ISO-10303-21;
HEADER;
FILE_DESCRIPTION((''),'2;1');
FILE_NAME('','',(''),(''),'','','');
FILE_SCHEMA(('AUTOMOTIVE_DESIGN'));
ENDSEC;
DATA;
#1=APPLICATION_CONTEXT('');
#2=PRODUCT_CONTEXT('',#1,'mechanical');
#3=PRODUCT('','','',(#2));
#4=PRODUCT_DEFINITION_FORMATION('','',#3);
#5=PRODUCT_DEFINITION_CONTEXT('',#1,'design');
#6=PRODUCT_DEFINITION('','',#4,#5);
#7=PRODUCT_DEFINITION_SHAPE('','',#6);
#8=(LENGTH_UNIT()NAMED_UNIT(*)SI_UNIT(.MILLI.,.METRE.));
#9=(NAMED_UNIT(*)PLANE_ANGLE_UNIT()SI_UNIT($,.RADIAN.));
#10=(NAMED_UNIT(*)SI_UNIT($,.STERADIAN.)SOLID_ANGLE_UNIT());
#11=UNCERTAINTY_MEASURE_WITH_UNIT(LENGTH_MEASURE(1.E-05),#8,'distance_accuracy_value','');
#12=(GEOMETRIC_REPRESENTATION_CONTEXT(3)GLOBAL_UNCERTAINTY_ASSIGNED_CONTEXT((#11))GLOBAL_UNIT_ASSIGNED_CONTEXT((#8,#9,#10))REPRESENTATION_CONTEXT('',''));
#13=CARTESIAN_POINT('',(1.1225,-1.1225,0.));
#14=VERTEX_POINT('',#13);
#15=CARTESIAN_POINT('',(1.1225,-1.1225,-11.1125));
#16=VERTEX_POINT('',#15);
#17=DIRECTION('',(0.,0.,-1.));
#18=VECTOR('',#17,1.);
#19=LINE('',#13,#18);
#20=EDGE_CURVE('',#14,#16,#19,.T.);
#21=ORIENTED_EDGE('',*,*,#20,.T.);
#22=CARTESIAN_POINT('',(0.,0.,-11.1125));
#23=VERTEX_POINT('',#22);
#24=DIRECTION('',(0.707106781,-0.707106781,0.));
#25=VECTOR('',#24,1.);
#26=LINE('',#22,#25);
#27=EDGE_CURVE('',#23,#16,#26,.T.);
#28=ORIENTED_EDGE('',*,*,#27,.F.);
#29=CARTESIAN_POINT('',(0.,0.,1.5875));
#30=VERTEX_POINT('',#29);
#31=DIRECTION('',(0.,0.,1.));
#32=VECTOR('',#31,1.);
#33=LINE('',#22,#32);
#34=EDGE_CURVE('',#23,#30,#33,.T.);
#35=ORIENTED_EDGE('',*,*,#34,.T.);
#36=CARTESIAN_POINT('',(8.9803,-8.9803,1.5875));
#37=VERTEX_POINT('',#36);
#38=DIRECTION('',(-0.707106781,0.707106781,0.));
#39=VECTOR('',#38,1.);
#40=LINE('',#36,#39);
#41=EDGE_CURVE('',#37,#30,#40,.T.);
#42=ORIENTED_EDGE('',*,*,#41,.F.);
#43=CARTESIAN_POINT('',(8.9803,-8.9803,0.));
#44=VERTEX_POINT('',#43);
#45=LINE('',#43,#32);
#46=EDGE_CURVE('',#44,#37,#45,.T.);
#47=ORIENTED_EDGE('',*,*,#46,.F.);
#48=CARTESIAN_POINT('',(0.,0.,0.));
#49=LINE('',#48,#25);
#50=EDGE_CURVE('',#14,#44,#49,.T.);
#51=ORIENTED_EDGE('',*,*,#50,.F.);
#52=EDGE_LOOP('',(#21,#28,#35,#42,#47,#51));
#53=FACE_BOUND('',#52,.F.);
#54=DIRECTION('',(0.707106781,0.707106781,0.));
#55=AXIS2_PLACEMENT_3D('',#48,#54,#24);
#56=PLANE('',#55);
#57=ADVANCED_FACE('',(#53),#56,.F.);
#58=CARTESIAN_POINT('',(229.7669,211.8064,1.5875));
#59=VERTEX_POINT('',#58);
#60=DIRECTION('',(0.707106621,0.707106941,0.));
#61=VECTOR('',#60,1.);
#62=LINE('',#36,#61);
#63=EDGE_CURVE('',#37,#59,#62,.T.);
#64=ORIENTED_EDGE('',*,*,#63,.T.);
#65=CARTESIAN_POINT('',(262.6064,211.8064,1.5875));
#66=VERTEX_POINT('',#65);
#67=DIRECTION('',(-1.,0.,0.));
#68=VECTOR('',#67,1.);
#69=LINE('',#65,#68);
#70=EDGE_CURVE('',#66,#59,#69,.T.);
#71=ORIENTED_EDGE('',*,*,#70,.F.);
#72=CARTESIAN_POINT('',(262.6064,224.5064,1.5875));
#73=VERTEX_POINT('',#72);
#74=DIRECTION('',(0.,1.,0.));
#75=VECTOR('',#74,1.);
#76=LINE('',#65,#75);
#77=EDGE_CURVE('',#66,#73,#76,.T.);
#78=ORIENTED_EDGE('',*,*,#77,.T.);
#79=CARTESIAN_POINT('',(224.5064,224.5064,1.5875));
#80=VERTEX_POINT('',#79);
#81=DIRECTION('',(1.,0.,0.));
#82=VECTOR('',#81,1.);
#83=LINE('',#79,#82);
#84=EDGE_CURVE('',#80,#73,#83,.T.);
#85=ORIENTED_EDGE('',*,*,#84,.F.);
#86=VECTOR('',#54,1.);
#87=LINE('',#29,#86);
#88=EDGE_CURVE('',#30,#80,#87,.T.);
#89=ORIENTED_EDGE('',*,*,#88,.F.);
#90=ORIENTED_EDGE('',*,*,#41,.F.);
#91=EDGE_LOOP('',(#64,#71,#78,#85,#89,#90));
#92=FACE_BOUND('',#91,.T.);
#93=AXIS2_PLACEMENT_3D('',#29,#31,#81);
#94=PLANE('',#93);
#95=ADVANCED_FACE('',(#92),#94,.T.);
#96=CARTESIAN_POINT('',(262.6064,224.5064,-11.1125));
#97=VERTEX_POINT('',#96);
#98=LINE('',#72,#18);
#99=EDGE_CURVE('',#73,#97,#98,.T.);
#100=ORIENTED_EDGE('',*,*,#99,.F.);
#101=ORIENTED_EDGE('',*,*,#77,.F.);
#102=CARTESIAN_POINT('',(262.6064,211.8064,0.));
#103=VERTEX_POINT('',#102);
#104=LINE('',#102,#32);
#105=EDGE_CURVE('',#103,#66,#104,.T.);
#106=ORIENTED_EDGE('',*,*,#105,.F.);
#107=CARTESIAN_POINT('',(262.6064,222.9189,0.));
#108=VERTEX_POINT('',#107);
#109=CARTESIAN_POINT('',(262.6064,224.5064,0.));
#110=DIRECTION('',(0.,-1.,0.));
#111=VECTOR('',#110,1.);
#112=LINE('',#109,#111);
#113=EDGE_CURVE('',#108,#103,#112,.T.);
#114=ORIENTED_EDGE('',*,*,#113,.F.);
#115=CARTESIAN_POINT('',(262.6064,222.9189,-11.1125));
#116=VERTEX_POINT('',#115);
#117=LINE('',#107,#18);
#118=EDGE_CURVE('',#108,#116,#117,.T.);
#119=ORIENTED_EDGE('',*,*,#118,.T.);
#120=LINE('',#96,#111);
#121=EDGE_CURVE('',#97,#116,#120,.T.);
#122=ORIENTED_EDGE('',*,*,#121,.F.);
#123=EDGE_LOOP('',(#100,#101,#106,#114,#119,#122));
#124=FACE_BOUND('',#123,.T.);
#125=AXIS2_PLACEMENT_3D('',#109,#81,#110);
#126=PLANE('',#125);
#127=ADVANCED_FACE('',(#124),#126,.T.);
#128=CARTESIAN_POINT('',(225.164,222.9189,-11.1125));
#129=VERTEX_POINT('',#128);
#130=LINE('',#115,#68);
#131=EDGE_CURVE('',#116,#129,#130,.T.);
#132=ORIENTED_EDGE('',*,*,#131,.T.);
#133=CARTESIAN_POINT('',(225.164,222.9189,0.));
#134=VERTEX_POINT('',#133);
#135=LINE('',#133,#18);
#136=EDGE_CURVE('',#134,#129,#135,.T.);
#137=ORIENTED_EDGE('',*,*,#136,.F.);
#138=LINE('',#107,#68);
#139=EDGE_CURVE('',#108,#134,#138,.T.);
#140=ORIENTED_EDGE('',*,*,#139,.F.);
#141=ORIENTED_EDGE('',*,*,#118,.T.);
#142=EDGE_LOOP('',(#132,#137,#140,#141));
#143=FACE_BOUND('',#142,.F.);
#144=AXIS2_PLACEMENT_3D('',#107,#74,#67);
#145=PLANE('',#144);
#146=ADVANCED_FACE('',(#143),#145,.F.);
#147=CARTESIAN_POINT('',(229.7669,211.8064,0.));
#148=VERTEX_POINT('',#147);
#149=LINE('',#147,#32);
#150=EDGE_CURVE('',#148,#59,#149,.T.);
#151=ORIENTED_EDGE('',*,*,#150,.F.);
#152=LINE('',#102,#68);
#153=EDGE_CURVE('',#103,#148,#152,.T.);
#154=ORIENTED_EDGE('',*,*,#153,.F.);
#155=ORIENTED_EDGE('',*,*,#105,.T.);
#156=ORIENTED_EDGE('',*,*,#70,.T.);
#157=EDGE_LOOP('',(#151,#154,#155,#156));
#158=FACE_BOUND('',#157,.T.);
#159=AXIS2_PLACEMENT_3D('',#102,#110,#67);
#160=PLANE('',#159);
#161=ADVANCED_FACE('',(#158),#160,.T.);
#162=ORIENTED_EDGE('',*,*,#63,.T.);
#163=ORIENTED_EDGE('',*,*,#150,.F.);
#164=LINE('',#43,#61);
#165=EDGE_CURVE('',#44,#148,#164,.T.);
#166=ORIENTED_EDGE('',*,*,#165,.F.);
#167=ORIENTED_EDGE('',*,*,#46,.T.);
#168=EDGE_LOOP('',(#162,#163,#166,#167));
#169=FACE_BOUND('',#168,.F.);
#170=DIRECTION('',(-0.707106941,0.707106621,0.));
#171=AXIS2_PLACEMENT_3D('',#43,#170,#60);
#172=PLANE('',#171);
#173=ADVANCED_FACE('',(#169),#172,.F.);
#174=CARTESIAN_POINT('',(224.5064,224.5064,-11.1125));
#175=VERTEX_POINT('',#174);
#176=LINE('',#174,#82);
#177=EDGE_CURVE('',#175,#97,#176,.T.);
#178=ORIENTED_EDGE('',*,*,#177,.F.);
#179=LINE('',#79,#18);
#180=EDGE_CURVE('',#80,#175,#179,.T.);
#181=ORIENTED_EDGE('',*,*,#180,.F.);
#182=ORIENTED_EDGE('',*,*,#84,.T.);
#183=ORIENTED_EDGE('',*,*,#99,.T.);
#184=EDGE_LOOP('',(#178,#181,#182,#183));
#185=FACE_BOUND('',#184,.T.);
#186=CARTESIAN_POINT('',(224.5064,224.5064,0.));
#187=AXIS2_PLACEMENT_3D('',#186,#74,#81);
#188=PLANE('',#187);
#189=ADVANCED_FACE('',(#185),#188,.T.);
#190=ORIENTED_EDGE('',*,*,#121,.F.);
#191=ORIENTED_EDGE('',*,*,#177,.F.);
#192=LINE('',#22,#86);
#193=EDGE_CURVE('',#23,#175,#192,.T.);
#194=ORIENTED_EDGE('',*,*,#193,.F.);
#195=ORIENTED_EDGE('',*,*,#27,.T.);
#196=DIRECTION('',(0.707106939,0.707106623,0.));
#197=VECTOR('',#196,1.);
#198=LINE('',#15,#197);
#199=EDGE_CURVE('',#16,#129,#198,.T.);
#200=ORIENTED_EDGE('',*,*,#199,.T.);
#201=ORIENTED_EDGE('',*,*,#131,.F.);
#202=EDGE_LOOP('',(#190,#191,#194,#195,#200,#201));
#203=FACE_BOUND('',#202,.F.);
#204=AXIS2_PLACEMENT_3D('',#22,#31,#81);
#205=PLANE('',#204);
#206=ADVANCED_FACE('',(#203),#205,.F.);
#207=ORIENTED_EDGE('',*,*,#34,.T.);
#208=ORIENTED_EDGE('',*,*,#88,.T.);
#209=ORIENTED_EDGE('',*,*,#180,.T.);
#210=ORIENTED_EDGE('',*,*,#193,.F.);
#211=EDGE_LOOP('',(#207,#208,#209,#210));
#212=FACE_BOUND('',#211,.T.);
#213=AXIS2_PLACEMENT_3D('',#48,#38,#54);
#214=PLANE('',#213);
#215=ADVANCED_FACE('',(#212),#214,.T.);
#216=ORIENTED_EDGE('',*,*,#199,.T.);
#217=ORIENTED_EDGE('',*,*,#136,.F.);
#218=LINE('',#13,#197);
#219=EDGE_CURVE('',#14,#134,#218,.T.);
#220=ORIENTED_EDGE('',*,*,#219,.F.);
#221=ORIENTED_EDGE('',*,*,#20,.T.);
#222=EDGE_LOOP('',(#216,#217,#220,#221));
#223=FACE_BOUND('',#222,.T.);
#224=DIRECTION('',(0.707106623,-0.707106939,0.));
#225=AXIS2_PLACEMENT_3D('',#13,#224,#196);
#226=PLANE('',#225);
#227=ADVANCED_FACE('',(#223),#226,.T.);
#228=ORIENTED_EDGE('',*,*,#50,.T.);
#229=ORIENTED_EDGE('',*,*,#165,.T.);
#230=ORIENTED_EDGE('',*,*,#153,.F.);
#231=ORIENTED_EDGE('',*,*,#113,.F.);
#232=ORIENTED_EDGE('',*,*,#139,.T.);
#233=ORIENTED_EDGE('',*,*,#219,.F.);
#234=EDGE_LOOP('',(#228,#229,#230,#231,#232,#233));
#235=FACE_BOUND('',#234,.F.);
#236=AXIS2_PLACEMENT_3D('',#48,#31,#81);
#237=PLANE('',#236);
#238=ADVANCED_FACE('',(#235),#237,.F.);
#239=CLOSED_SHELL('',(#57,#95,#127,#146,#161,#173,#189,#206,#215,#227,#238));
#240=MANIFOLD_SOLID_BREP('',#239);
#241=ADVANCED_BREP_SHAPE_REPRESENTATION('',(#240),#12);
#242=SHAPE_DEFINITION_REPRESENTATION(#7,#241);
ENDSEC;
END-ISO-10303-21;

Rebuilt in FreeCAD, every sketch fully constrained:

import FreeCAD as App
import Part
import Sketcher
from FreeCAD import Vector
Q = App.Units.Quantity


def add_polygon(sketch, points):
    """Adds a closed chain of lines whose ends are joined by coincident constraints."""
    first, n = sketch.GeometryCount, len(points)
    for a, b in zip(points, points[1:] + points[:1]):
        sketch.addGeometry(Part.LineSegment(App.Vector(*a, 0), App.Vector(*b, 0)), False)
    for i in range(n):
        sketch.addConstraint(Sketcher.Constraint("Coincident", first + i, 2, first + (i + 1) % n, 1))

doc = App.newDocument("Part")
body = doc.addObject("PartDesign::Body", "Body")

# Sketch on XY plane
sketch1 = body.newObject("Sketcher::SketchObject", "Sketch")
sketch1.AttachmentSupport = (doc.getObject("XY_Plane"), [""])
sketch1.MapMode = "FlatFace"
add_polygon(sketch1, [(225, 225), (0, 0), (9, -9), (230, 212), (263, 212), (263, 225)])  # lines 0-5
sketch1.addConstraint([
    Sketcher.Constraint("Horizontal", 3),
    Sketcher.Constraint("Vertical", 4),
    Sketcher.Constraint("Horizontal", 5),
    Sketcher.Constraint("Coincident", 0, 2, -1, 1),
    Sketcher.Constraint("Perpendicular", 0, 1),
    Sketcher.Constraint("Perpendicular", 1, 2),
    Sketcher.Constraint("DistanceX", 5, 2, 5, 1, Q("1.5 in")),
    Sketcher.Constraint("DistanceY", 4, 1, 4, 2, Q("0.5 in")),
    Sketcher.Constraint("Angle", 1, Q("-45 deg")),
    Sketcher.Constraint("Distance", 0, Q("12.5 in")),
    Sketcher.Constraint("Distance", 1, Q("0.5 in")),
])
pad1 = body.newObject("PartDesign::Pad", "Pad")
pad1.Profile = sketch1
pad1.Length = Q("0.0625 in")

# Sketch on XY plane
sketch2 = body.newObject("Sketcher::SketchObject", "Sketch001")
sketch2.AttachmentSupport = (doc.getObject("XY_Plane"), [""])
sketch2.MapMode = "FlatFace"
add_polygon(sketch2, [(224.5, 224.5), (0, 0), (1.1, -1.1), (225.2, 222.9), (262.6, 222.9), (262.6, 224.5)])  # lines 0-5
sketch2.addConstraint([
    Sketcher.Constraint("Horizontal", 3),
    Sketcher.Constraint("Vertical", 4),
    Sketcher.Constraint("Horizontal", 5),
    Sketcher.Constraint("Coincident", 0, 2, -1, 1),
    Sketcher.Constraint("Perpendicular", 0, 1),
    Sketcher.Constraint("Perpendicular", 1, 2),
    Sketcher.Constraint("DistanceX", 5, 2, 5, 1, Q("1.5 in")),
    Sketcher.Constraint("Angle", 2, Q("45 deg")),
    Sketcher.Constraint("Distance", 0, Q("12.5 in")),
    Sketcher.Constraint("DistanceY", 4, 1, 4, 2, Q("0.0625 in")),
    Sketcher.Constraint("Distance", 1, Q("0.0625 in")),
])
pad2 = body.newObject("PartDesign::Pad", "Pad001")
pad2.Profile = sketch2
pad2.Length = Q("0.4375 in")
pad2.Reversed = True

doc.recompute()
